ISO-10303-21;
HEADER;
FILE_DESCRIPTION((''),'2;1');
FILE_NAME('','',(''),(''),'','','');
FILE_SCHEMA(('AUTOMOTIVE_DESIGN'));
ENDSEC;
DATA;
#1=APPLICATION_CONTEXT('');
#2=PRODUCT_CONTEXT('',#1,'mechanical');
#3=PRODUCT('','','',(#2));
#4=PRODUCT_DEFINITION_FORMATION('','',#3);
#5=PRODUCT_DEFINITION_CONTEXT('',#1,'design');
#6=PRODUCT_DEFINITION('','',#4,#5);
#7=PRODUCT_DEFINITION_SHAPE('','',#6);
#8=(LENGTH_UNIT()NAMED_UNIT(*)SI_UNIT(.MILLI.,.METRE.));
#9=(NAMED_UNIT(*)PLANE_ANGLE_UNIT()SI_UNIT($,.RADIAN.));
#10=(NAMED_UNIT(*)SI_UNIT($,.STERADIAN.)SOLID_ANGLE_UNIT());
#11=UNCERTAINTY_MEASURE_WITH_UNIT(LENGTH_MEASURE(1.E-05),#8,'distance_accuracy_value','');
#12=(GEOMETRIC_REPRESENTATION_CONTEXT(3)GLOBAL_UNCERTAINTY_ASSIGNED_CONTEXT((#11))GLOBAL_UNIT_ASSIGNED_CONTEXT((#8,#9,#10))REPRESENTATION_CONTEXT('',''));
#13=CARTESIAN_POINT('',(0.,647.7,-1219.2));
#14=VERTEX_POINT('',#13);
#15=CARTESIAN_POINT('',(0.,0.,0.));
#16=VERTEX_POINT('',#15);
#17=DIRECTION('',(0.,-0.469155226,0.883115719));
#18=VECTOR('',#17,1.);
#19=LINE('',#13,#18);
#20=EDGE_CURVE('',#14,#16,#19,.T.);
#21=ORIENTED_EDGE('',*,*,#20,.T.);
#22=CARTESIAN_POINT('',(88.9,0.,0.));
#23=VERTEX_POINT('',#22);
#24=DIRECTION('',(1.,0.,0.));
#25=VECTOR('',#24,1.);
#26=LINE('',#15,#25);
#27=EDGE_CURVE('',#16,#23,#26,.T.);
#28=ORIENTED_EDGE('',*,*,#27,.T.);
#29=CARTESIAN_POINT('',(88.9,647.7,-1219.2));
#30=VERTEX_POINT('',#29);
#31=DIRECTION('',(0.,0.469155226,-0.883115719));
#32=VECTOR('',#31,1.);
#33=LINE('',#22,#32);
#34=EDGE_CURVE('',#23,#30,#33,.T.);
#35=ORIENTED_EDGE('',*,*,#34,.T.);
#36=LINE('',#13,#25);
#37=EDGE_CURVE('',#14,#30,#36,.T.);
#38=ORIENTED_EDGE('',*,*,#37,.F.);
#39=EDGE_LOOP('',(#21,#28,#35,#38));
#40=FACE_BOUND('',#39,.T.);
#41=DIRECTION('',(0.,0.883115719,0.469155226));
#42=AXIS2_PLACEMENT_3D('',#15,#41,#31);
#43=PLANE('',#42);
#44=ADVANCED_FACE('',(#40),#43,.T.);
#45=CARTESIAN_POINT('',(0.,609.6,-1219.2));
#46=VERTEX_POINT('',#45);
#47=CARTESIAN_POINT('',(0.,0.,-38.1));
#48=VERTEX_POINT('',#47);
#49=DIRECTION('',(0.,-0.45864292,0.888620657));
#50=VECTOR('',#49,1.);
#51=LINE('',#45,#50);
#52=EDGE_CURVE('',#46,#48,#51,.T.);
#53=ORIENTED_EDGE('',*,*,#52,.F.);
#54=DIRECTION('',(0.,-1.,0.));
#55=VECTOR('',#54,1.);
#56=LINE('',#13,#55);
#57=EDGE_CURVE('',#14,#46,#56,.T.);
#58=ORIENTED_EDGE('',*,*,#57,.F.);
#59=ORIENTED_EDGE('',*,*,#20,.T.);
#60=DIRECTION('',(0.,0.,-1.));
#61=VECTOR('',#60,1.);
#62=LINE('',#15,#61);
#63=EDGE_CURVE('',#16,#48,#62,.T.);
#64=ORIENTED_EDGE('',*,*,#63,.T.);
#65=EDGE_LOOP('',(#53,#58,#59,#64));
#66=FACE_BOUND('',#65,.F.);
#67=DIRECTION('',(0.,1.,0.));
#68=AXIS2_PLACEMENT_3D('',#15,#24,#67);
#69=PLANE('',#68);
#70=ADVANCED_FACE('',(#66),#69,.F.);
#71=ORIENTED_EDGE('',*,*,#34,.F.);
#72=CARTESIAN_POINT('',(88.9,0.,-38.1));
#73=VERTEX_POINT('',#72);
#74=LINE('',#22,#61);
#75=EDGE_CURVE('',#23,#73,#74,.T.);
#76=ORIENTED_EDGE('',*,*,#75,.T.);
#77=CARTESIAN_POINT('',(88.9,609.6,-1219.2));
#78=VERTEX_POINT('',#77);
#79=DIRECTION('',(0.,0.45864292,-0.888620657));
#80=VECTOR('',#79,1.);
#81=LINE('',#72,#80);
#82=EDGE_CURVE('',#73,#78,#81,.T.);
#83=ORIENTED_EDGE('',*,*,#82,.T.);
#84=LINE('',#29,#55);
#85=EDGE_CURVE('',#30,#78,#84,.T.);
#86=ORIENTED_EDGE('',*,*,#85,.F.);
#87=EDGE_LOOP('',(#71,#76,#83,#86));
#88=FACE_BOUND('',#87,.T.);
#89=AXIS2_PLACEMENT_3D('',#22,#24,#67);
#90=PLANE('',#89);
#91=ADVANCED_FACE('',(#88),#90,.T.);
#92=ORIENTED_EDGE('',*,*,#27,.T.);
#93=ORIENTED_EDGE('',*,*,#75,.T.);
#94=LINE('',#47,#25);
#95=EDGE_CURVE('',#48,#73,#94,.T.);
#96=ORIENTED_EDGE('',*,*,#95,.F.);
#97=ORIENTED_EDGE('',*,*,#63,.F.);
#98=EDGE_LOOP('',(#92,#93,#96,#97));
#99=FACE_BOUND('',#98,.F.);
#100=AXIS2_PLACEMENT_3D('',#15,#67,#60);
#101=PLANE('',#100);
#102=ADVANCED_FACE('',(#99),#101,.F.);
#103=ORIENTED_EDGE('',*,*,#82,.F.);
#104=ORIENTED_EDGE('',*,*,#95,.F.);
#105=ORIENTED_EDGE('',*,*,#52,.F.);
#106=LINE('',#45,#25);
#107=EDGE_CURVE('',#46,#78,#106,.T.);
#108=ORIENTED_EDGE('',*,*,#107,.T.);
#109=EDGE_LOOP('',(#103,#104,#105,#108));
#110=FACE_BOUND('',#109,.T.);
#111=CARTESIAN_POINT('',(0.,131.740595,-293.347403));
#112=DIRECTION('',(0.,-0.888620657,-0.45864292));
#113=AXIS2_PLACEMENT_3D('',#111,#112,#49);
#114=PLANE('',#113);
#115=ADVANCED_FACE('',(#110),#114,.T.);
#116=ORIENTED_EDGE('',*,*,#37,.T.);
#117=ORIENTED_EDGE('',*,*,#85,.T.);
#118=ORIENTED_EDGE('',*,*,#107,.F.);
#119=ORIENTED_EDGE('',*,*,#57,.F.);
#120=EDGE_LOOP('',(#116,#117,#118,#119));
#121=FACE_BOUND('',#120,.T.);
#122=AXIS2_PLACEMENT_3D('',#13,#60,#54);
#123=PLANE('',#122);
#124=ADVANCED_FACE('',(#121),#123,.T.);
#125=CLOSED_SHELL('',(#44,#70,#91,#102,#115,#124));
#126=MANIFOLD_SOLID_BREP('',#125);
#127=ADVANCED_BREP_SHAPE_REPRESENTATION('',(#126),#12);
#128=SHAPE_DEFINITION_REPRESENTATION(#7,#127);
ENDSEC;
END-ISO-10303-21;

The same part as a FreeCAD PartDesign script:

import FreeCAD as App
import Part
import Sketcher
from FreeCAD import Vector
Q = App.Units.Quantity


def add_polygon(sketch, points):
    """Adds a closed chain of lines whose ends are joined by coincident constraints."""
    first, n = sketch.GeometryCount, len(points)
    for a, b in zip(points, points[1:] + points[:1]):
        sketch.addGeometry(Part.LineSegment(App.Vector(*a, 0), App.Vector(*b, 0)), False)
    for i in range(n):
        sketch.addConstraint(Sketcher.Constraint("Coincident", first + i, 2, first + (i + 1) % n, 1))

doc = App.newDocument("Part")
body = doc.addObject("PartDesign::Body", "Body")

sketch1 = body.newObject("Sketcher::SketchObject", "Sketch")
sketch1.AttachmentSupport = (doc.getObject("YZ_Plane"), [""])
sketch1.MapMode = "FlatFace"
add_polygon(sketch1, [(0, 0), (0, -38.1), (609.6, -1219.2), (647.7, -1219.2)])
sketch1.addConstraint([
    Sketcher.Constraint("Vertical", 0),
    Sketcher.Constraint("Horizontal", 2),
    Sketcher.Constraint("Coincident", 3, 2, -1, 1),
    Sketcher.Constraint("Equal", 2, 0),
    Sketcher.Constraint("DistanceX", 2, 1, 2, 2, Q("1.5 in")),
    Sketcher.Constraint("DistanceX", -1, 1, 1, 2, Q("24 in")),
    Sketcher.Constraint("DistanceY", 1, 2, -1, 1, Q("48 in")),
])
pad1 = body.newObject("PartDesign::Pad", "Pad")
pad1.Profile = sketch1
pad1.Length = Q("3.5 in")

doc.recompute()
